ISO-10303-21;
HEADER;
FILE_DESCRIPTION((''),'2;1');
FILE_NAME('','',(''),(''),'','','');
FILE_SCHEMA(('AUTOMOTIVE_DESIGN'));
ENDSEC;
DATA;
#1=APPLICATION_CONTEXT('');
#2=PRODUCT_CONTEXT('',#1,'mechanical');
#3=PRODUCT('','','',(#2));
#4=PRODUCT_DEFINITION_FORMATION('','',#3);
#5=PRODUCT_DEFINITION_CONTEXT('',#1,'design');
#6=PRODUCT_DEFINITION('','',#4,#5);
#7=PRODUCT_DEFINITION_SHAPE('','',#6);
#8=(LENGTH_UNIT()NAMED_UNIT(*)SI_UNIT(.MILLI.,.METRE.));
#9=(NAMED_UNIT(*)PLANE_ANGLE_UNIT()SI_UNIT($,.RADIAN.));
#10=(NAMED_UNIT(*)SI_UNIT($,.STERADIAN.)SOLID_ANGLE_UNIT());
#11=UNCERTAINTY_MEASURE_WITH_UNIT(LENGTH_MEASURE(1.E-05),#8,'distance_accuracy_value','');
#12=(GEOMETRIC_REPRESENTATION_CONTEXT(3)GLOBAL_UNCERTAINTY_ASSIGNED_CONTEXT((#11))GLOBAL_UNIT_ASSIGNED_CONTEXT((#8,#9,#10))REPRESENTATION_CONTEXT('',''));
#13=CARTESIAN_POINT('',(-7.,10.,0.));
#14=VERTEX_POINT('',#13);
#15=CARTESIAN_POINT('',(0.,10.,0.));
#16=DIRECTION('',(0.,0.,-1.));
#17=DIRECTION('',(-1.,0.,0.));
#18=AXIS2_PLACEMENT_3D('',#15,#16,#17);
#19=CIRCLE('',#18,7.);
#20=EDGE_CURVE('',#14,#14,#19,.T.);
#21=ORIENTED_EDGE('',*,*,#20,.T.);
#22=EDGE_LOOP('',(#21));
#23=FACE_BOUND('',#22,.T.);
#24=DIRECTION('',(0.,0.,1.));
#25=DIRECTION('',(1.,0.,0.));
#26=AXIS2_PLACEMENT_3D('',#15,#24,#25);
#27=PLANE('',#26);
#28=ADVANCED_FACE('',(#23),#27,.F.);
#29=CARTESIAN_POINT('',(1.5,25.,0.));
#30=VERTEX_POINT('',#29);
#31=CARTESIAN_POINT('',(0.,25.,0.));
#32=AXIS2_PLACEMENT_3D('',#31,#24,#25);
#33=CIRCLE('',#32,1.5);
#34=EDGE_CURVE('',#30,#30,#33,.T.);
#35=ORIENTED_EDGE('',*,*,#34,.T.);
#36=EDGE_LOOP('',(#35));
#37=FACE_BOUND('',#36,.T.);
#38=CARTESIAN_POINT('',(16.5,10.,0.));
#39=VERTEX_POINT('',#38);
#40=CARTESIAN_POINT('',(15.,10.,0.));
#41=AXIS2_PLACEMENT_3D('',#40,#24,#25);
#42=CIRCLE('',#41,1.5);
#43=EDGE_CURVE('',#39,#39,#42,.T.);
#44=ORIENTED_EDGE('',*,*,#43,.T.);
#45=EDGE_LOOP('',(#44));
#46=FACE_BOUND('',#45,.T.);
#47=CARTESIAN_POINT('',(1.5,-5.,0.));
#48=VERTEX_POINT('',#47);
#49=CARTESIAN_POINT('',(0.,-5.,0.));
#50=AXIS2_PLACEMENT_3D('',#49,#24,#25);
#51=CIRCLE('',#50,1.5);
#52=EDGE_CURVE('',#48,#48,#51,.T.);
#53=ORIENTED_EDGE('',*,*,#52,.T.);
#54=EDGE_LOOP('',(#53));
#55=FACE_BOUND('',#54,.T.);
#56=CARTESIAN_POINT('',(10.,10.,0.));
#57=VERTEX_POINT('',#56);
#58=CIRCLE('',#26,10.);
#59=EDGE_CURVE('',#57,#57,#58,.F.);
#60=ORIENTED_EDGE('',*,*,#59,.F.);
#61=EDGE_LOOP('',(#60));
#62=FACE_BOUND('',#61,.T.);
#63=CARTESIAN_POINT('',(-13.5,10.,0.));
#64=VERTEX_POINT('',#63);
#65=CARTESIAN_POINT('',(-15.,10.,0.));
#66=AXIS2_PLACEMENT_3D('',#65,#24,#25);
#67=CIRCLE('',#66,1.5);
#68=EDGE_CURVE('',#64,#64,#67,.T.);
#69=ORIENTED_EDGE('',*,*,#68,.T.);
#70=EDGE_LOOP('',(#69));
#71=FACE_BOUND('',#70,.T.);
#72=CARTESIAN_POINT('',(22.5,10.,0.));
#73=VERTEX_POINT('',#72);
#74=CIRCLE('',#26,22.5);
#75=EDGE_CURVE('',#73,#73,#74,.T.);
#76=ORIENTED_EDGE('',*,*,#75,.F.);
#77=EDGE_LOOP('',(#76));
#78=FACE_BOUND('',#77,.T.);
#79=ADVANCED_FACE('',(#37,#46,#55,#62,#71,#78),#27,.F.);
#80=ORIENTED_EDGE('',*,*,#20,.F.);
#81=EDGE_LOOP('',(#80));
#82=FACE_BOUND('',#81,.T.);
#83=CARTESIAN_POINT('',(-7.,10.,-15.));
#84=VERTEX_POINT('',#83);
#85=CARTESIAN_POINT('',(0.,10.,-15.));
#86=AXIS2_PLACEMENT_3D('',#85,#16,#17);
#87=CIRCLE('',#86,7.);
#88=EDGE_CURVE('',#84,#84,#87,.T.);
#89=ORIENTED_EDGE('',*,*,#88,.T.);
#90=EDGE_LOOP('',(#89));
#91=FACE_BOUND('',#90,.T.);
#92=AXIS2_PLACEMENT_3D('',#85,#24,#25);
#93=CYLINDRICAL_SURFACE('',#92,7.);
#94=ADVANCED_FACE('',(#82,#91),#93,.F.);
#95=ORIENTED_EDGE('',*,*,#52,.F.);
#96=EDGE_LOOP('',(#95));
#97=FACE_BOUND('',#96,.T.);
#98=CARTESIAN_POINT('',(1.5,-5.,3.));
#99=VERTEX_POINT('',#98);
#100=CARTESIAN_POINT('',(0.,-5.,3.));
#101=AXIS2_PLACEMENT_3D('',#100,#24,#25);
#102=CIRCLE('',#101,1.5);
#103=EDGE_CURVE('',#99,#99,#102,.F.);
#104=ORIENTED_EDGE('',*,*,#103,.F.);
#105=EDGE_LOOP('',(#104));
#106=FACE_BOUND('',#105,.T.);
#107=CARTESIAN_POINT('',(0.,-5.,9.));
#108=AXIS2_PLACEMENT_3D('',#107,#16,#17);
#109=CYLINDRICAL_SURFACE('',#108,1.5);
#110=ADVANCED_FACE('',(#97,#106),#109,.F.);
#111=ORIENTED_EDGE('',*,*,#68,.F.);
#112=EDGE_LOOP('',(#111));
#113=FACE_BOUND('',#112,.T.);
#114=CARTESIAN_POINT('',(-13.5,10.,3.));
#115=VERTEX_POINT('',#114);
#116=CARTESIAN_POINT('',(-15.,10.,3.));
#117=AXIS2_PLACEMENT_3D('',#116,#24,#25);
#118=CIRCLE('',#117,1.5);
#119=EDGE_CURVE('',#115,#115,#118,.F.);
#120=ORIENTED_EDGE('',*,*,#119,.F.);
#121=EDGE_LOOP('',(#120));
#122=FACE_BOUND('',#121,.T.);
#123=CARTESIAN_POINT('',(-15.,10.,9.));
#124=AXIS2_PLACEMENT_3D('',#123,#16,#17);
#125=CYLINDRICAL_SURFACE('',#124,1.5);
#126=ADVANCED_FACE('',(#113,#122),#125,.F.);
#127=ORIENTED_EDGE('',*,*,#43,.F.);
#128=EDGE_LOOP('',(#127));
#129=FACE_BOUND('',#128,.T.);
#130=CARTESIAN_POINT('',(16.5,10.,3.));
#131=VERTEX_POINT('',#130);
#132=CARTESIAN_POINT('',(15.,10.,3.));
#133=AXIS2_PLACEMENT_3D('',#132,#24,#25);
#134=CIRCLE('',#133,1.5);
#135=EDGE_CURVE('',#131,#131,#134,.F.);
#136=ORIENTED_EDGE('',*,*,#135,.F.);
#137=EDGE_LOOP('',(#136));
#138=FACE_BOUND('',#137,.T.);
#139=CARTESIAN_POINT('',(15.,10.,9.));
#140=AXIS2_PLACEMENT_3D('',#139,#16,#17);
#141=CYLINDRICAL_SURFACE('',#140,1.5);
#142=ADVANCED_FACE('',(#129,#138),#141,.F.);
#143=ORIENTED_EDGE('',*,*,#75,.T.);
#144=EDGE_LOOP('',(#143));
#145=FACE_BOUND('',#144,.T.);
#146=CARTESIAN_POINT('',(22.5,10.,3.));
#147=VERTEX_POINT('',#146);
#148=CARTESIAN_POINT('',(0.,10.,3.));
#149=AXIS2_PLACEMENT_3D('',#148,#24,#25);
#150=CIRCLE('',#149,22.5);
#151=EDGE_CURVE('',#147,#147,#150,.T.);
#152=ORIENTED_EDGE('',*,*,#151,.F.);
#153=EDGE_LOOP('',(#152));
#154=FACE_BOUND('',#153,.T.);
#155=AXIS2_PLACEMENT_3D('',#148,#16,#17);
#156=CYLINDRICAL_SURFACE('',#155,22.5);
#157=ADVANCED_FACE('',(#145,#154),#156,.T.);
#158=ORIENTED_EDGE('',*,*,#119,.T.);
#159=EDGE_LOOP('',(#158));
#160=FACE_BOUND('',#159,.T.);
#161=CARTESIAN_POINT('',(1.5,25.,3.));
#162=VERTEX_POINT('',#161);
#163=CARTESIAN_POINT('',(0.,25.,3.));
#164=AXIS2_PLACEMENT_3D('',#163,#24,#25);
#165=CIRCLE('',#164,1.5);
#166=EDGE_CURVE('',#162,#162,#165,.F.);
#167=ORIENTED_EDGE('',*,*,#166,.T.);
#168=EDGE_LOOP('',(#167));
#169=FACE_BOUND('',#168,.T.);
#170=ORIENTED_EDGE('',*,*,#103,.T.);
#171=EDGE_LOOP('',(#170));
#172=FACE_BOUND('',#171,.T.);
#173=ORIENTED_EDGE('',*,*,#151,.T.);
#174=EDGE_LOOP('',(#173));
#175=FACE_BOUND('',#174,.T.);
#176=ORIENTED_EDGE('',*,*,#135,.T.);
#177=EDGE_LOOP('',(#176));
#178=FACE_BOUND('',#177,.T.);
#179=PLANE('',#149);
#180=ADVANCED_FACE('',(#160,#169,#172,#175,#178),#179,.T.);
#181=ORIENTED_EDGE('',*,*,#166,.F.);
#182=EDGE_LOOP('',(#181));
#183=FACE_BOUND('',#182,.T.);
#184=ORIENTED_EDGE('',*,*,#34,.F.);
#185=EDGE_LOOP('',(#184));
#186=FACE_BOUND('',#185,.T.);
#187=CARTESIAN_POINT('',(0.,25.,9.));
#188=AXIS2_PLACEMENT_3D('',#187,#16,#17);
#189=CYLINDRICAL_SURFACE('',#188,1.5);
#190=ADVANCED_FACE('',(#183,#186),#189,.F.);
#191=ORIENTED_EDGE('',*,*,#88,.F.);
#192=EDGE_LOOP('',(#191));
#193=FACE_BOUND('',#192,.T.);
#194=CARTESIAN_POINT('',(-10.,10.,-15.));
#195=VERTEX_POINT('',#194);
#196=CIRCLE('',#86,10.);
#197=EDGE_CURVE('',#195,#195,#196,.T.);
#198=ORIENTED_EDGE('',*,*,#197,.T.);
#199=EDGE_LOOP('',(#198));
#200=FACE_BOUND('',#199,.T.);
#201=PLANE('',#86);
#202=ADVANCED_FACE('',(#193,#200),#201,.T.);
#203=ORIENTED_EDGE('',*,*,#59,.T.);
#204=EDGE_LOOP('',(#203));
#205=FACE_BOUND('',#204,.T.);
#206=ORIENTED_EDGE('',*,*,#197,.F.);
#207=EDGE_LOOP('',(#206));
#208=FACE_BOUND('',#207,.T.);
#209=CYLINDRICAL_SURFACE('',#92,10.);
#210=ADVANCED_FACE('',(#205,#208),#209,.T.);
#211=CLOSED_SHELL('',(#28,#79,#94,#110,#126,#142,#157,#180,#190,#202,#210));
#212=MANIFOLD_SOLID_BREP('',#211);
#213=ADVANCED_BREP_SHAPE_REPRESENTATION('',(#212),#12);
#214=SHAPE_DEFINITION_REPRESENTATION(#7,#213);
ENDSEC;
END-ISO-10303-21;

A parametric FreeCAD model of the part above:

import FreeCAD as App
import Part
import Sketcher

doc = App.newDocument("Part")
body = doc.addObject("PartDesign::Body", "Body")

# Sketch on XY plane
sketch1 = body.newObject("Sketcher::SketchObject", "Sketch")
sketch1.AttachmentSupport = (doc.getObject("XY_Plane"), [""])
sketch1.MapMode = "FlatFace"
sketch1.addGeometry(Part.Circle(App.Vector(0, 10, 0), App.Vector(0, 0, 1), 22), False)
sketch1.addConstraint(Sketcher.Constraint("PointOnObject", 0, 3, -2))
sketch1.addConstraint(Sketcher.Constraint("Diameter", 0, 45.0))
sketch1.addConstraint(Sketcher.Constraint("DistanceY", -1, 1, 0, 3, 10.0))
pad1 = body.newObject("PartDesign::Pad", "Pad")
pad1.Profile = sketch1
pad1.Length = 3

# Sketch on XY plane
sketch2 = body.newObject("Sketcher::SketchObject", "Sketch001")
sketch2.AttachmentSupport = (doc.getObject("XY_Plane"), [""])
sketch2.MapMode = "FlatFace"
sketch2.addGeometry(Part.Circle(App.Vector(0, 10, 0), App.Vector(0, 0, 1), 10), False)
sketch2.addGeometry(Part.Circle(App.Vector(0, 10, 0), App.Vector(0, 0, 1), 7), False)
sketch2.addConstraint(Sketcher.Constraint("Coincident", 1, 3, 0, 3))
sketch2.addConstraint(Sketcher.Constraint("PointOnObject", 0, 3, -2))
sketch2.addConstraint(Sketcher.Constraint("Diameter", 0, 20.0))
sketch2.addConstraint(Sketcher.Constraint("Diameter", 1, 14.0))
sketch2.addConstraint(Sketcher.Constraint("DistanceY", -1, 1, 0, 3, 10.0))
pad2 = body.newObject("PartDesign::Pad", "Pad001")
pad2.Profile = sketch2
pad2.Length = 15
pad2.Reversed = True

# Sketch on XY plane
sketch3 = body.newObject("Sketcher::SketchObject", "Sketch002")
sketch3.AttachmentSupport = (doc.getObject("XY_Plane"), [""])
sketch3.MapMode = "FlatFace"
sketch3.addGeometry(Part.Circle(App.Vector(0, 25, 0), App.Vector(0, 0, 1), 1.5), False)
sketch3.addGeometry(Part.Circle(App.Vector(15, 10, 0), App.Vector(0, 0, 1), 1.5), False)
sketch3.addGeometry(Part.Circle(App.Vector(0, -5, 0), App.Vector(0, 0, 1), 1.5), False)
sketch3.addGeometry(Part.Circle(App.Vector(-15, 10, 0), App.Vector(0, 0, 1), 1.5), False)
sketch3.addConstraint(Sketcher.Constraint("Equal", 0, 1))
sketch3.addConstraint(Sketcher.Constraint("Equal", 1, 2))
sketch3.addConstraint(Sketcher.Constraint("Equal", 2, 3))
sketch3.addConstraint(Sketcher.Constraint("Symmetric", 1, 3, 3, 3, -2))
sketch3.addConstraint(Sketcher.Constraint("PointOnObject", 0, 3, -2))
sketch3.addConstraint(Sketcher.Constraint("PointOnObject", 2, 3, -2))
sketch3.addConstraint(Sketcher.Constraint("Diameter", 0, 3.0))
sketch3.addConstraint(Sketcher.Constraint("DistanceY", -1, 1, 0, 3, 25.0))
sketch3.addConstraint(Sketcher.Constraint("DistanceX", -1, 1, 1, 3, 15.0))
sketch3.addConstraint(Sketcher.Constraint("DistanceY", -1, 1, 1, 3, 10.0))
sketch3.addConstraint(Sketcher.Constraint("DistanceY", 2, 3, -1, 1, 5.0))
pocket1 = body.newObject("PartDesign::Pocket", "Pocket")
pocket1.Profile = sketch3
pocket1.Length = 9
pocket1.Reversed = True

doc.recompute()
